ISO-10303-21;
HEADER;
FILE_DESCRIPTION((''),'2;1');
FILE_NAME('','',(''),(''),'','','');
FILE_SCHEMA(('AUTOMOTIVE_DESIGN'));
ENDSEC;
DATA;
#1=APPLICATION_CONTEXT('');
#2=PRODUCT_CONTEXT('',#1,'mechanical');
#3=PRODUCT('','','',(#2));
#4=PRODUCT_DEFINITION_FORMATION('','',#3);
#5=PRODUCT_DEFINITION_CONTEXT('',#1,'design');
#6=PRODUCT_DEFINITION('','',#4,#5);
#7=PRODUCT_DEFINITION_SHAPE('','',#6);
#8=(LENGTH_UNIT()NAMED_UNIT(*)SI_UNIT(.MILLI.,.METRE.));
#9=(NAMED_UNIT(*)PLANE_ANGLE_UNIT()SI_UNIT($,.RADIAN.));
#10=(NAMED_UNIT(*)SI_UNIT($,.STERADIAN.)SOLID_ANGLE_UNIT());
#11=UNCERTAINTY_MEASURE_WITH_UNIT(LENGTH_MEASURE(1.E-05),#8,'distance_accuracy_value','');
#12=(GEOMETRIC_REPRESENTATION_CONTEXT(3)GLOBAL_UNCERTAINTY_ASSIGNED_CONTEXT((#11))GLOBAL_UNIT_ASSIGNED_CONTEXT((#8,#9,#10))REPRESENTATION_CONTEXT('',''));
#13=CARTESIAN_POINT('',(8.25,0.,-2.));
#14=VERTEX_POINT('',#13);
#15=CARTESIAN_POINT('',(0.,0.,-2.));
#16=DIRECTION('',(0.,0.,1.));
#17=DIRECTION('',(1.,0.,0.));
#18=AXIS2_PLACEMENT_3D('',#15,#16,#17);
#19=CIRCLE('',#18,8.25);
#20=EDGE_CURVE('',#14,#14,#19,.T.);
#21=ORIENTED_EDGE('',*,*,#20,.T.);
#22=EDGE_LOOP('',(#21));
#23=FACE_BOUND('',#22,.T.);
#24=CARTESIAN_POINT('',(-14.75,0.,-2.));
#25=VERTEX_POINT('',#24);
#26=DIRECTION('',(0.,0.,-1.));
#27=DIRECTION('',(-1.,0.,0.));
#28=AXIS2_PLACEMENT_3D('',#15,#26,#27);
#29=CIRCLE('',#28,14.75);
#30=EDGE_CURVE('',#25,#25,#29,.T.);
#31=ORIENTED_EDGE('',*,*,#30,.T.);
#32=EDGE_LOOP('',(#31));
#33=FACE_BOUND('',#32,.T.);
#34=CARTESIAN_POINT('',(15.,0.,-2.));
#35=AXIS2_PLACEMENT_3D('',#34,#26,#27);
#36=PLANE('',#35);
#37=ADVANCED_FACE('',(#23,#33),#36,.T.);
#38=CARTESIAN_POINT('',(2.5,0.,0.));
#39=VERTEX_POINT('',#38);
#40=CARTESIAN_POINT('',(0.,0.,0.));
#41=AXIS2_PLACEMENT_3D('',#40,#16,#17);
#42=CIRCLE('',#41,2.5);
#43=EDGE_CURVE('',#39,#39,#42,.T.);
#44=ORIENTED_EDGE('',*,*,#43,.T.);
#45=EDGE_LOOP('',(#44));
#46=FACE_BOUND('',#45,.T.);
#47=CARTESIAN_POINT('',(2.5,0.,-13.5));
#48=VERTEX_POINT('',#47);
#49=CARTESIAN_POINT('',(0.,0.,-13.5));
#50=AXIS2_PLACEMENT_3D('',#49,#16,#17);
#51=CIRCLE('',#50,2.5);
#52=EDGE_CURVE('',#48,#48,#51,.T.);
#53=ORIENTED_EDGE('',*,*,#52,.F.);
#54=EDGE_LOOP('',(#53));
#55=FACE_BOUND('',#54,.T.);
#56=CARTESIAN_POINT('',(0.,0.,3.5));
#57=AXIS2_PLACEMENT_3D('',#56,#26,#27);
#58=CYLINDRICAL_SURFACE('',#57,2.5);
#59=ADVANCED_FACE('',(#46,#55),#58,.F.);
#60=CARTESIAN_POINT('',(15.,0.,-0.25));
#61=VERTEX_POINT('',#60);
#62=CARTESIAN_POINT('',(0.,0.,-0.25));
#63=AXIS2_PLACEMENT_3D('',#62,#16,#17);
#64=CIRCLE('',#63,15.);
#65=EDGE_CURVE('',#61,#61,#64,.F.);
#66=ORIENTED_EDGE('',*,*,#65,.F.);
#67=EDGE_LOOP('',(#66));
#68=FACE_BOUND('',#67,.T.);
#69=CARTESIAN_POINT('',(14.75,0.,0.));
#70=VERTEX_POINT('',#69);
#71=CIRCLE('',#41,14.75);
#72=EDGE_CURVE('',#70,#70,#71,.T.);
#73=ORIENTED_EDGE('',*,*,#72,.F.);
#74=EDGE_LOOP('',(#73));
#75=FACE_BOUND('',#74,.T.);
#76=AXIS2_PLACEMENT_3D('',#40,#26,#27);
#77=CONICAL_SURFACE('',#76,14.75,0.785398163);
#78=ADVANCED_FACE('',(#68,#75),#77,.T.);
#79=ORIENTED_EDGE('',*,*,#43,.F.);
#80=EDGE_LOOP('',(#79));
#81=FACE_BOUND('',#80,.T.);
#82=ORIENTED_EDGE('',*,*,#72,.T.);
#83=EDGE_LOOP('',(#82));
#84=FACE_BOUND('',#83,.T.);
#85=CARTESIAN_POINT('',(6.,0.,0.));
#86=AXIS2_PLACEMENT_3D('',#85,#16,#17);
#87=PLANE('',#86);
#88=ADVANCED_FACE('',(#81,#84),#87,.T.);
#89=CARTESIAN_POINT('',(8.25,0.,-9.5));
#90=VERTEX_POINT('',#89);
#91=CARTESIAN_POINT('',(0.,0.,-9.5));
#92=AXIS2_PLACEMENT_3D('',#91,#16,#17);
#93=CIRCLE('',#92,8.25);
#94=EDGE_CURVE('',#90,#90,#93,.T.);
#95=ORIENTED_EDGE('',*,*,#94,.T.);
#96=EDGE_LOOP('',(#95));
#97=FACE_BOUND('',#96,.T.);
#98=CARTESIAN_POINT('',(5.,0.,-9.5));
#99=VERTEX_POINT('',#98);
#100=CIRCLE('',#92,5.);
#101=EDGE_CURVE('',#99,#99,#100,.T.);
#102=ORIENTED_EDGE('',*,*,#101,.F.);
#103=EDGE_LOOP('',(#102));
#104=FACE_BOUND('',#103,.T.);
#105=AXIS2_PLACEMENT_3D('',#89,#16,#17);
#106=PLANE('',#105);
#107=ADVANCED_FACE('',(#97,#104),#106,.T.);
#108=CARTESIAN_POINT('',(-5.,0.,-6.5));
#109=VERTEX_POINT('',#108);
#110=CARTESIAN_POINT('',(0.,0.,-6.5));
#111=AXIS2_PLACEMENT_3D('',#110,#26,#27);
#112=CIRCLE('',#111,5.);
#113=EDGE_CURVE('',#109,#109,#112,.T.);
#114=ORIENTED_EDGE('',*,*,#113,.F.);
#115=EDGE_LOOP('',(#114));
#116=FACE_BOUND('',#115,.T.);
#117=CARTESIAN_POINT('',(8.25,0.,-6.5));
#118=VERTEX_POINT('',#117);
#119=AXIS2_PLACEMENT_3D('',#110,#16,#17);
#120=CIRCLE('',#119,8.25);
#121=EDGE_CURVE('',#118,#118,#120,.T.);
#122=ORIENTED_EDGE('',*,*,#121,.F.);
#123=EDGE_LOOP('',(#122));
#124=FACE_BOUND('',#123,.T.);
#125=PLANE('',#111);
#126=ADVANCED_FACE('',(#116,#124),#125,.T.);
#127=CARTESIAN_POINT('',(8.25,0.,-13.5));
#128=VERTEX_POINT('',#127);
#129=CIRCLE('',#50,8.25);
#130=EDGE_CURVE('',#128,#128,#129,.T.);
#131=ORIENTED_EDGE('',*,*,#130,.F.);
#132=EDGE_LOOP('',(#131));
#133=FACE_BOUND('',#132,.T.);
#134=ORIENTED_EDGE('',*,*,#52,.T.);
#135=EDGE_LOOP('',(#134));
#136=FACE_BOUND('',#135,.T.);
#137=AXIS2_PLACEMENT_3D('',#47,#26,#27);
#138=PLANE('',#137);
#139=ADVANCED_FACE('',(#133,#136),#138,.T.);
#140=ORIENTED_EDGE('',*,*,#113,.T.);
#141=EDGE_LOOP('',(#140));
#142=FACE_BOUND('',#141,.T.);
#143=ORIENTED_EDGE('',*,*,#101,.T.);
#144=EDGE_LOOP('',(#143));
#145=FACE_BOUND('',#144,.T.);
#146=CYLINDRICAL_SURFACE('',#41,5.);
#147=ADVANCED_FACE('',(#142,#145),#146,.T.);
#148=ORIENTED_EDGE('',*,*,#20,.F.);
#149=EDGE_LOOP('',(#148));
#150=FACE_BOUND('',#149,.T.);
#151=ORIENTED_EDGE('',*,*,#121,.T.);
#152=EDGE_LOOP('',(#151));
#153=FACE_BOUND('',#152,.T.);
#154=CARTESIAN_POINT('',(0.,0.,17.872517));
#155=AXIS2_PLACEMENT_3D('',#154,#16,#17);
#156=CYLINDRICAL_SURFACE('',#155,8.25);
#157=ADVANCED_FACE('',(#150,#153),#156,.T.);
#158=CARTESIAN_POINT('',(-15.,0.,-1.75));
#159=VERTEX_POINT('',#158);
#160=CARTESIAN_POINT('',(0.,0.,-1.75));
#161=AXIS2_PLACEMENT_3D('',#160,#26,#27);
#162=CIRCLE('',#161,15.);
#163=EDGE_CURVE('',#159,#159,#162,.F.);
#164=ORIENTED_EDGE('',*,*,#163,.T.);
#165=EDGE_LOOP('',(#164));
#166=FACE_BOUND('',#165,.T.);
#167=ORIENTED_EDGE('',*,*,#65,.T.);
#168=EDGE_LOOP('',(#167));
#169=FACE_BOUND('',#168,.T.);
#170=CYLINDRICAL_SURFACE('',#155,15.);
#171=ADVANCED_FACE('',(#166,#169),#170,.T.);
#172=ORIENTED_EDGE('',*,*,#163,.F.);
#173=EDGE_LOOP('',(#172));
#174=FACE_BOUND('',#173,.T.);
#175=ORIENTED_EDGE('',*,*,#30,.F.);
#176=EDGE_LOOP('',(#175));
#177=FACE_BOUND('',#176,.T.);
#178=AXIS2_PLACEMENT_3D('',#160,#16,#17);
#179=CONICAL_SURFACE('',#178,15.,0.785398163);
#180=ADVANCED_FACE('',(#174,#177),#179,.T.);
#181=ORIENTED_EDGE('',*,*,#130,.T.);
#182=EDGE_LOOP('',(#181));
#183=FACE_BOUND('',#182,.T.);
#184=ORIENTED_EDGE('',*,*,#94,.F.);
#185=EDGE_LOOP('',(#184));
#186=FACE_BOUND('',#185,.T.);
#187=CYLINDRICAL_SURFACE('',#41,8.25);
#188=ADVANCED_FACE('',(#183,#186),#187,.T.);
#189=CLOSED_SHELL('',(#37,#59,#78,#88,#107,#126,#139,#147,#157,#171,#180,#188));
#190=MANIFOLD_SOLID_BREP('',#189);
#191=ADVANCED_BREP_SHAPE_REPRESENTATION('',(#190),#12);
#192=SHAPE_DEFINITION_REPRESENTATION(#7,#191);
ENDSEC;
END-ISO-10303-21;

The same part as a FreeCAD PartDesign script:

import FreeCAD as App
import Part
import Sketcher
Q = App.Units.Quantity


def edges_at(feature, points):
    """Names of the edges that pass closest to the given points."""
    edges = feature.Shape.Edges
    near = lambda p: min(range(len(edges)), key=lambda i: edges[i].distToShape(Part.Vertex(*p))[0])
    return sorted({f"Edge{near(p) + 1}" for p in points})


def add_polygon(sketch, points):
    """Adds a closed chain of lines whose ends are joined by coincident constraints."""
    first, n = sketch.GeometryCount, len(points)
    for a, b in zip(points, points[1:] + points[:1]):
        sketch.addGeometry(Part.LineSegment(App.Vector(*a, 0), App.Vector(*b, 0)), False)
    for i in range(n):
        sketch.addConstraint(Sketcher.Constraint("Coincident", first + i, 2, first + (i + 1) % n, 1))

doc = App.newDocument("Part")
params = doc.addObject("Spreadsheet::Sheet", "Params")
for row, (alias, value) in enumerate([
    ("sketch1_width", "15 mm"),
    ("sketch1_height", "2 mm"),
    ("sketch1_height2", "4.5 mm"),
    ("sketch1_width2", "6.75 mm"),
    ("revolution_angle", "360 deg"),
    ("chamfer_size", "0.25 mm"),
    ("sketch2_diameter", "5 mm"),
    ("pocket1_length", "10 mm"),
    ("sketch3_height", "4 mm"),
    ("sketch3_width", "2.5 mm"),
    ("sketch3_width2", "3.25 mm"),
    ("revolution2_angle", "360 deg"),
], start=1):
    params.set(f"A{row}", alias)
    params.set(f"B{row}", "=" + value)
    params.setAlias(f"B{row}", alias)

body = doc.addObject("PartDesign::Body", "Body")

# Sketch on XZ plane
sketch1 = body.newObject("Sketcher::SketchObject", "Sketch")
sketch1.AttachmentSupport = (doc.getObject("XZ_Plane"), [""])
sketch1.MapMode = "FlatFace"
add_polygon(sketch1, [(0, 0), (15, 0), (15, -2), (8.2, -2), (8.2, -6.5), (0, -6.5)])  # lines 0-5
sketch1.addConstraint(Sketcher.Constraint("Horizontal", 0))
sketch1.addConstraint(Sketcher.Constraint("Vertical", 1))
sketch1.addConstraint(Sketcher.Constraint("Horizontal", 2))
sketch1.addConstraint(Sketcher.Constraint("Vertical", 3))
sketch1.addConstraint(Sketcher.Constraint("Horizontal", 4))
sketch1.addConstraint(Sketcher.Constraint("Vertical", 5))
sketch1.addConstraint(Sketcher.Constraint("Coincident", 5, 2, -1, 1))
sketch1.addConstraint(Sketcher.Constraint("DistanceX", 0, 1, 0, 2, Q("15 mm")))
sketch1.addConstraint(Sketcher.Constraint("DistanceY", 1, 2, 1, 1, Q("2 mm")))
sketch1.addConstraint(Sketcher.Constraint("DistanceY", 3, 2, 3, 1, Q("4.5 mm")))
sketch1.addConstraint(Sketcher.Constraint("DistanceX", 2, 2, 2, 1, Q("6.75 mm")))
sketch1.setExpression("Constraints[13]", "Params.sketch1_width")
sketch1.setExpression("Constraints[14]", "Params.sketch1_height")
sketch1.setExpression("Constraints[15]", "Params.sketch1_height2")
sketch1.setExpression("Constraints[16]", "Params.sketch1_width2")
revolution = body.newObject("PartDesign::Revolution", "Revolution")
revolution.Profile = sketch1
revolution.ReferenceAxis = (sketch1, ["V_Axis"])
revolution.setExpression("Angle", "Params.revolution_angle")
doc.recompute()

chamfer = body.newObject("PartDesign::Chamfer", "Chamfer")
chamfer.Base = (revolution, edges_at(revolution, [(-15, 0, -2), (-15, 0, 0)]))
chamfer.setExpression("Size", "Params.chamfer_size")

# Sketch on XY plane
sketch2 = body.newObject("Sketcher::SketchObject", "Sketch001")
sketch2.AttachmentSupport = (doc.getObject("XY_Plane"), [""])
sketch2.MapMode = "FlatFace"
sketch2.AttachmentOffset = App.Placement(App.Vector(0, 0, -6.5), App.Rotation())
sketch2.addGeometry(Part.Circle(App.Vector(0, 0, 0), App.Vector(0, 0, 1), 2.5), False)
sketch2.addConstraint(Sketcher.Constraint("Coincident", 0, 3, -1, 1))
sketch2.addConstraint(Sketcher.Constraint("Diameter", 0, Q("5 mm")))
sketch2.setExpression("Constraints[1]", "Params.sketch2_diameter")
pocket1 = body.newObject("PartDesign::Pocket", "Pocket")
pocket1.Profile = sketch2
pocket1.setExpression("Length", "Params.pocket1_length")
pocket1.Reversed = True

# Sketch on XZ plane
sketch3 = body.newObject("Sketcher::SketchObject", "Sketch002")
sketch3.AttachmentSupport = (doc.getObject("XZ_Plane"), [""])
sketch3.MapMode = "FlatFace"
add_polygon(sketch3, [(2.5, -13.5), (2.5, -3.2), (5, -3.2), (5, -9.5), (8.2, -9.5), (8.2, -13.5)])  # lines 0-5
sketch3.addConstraint(Sketcher.Constraint("Vertical", 0))
sketch3.addConstraint(Sketcher.Constraint("Horizontal", 1))
sketch3.addConstraint(Sketcher.Constraint("Vertical", 2))
sketch3.addConstraint(Sketcher.Constraint("Horizontal", 3))
sketch3.addConstraint(Sketcher.Constraint("Vertical", 4))
sketch3.addConstraint(Sketcher.Constraint("Horizontal", 5))
sketch3.addConstraint(Sketcher.Constraint("DistanceY", 4, 2, 4, 1, Q("4 mm")))
sketch3.addConstraint(Sketcher.Constraint("DistanceX", 1, 1, 1, 2, Q("2.5 mm")))
sketch3.addConstraint(Sketcher.Constraint("DistanceX", -1, 1, 1, 2, Q("5 mm")))
sketch3.addConstraint(Sketcher.Constraint("DistanceX", 3, 1, 3, 2, Q("3.25 mm")))
sketch3.addConstraint(Sketcher.Constraint("DistanceY", 2, 2, -1, 1, Q("9.5 mm")))
sketch3.addConstraint(Sketcher.Constraint("DistanceY", 0, 1, 0, 2, Q("10.262449 mm")))
sketch3.setExpression("Constraints[12]", "Params.sketch3_height")
sketch3.setExpression("Constraints[13]", "Params.sketch3_width")
sketch3.setExpression("Constraints[15]", "Params.sketch3_width2")
revolution2 = body.newObject("PartDesign::Revolution", "Revolution001")
revolution2.Profile = sketch3
revolution2.ReferenceAxis = (sketch3, ["V_Axis"])
revolution2.setExpression("Angle", "Params.revolution2_angle")

doc.recompute()
